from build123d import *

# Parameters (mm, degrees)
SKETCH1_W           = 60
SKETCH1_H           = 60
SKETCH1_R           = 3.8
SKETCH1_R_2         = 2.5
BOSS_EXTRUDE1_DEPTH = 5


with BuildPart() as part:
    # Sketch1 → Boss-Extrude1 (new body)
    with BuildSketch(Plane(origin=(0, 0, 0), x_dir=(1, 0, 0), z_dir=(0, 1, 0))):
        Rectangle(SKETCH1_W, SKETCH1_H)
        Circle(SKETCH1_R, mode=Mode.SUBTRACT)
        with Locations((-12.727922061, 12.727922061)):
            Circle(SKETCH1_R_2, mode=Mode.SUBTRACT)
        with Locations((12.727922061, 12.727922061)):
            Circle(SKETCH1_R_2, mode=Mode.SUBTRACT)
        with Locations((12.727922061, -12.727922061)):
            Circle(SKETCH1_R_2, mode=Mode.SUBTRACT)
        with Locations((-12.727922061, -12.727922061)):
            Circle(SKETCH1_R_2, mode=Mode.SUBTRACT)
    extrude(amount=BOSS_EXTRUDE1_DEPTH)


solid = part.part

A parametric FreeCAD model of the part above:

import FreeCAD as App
import Part
import Sketcher

V = App.Vector
Q = App.Units.Quantity


def add_polygon(sketch, points):
    """Adds a closed chain of lines whose ends are joined by coincident constraints."""
    first, n = sketch.GeometryCount, len(points)
    for a, b in zip(points, points[1:] + points[:1]):
        sketch.addGeometry(Part.LineSegment(App.Vector(*a, 0), App.Vector(*b, 0)), False)
    for i in range(n):
        sketch.addConstraint(Sketcher.Constraint("Coincident", first + i, 2, first + (i + 1) % n, 1))

doc = App.newDocument("Part")
body = doc.addObject("PartDesign::Body", "Body")

# Sketch on XZ plane
sketch1 = body.newObject("Sketcher::SketchObject", "Sketch")
sketch1.AttachmentSupport = (doc.getObject("XZ_Plane"), [""])
sketch1.MapMode = "FlatFace"
add_polygon(sketch1, [(-30, -30), (-30, 30), (30, 30), (30, -30)])  # lines 0-3
sketch1.addGeometry(Part.Circle(V(-12.7, 12.7, 0), V(0, 0, 1), 2.5), False)  # 4
sketch1.addGeometry(Part.Circle(V(12.7, 12.7, 0), V(0, 0, 1), 2.5), False)  # 5
sketch1.addGeometry(Part.Circle(V(-12.7, -12.7, 0), V(0, 0, 1), 2.5), False)  # 6
sketch1.addGeometry(Part.Circle(V(0, 0, 0), V(0, 0, 1), 3.8), False)  # 7
sketch1.addGeometry(Part.Circle(V(12.7, -12.7, 0), V(0, 0, 1), 2.5), False)  # 8
sketch1.addConstraint([
    Sketcher.Constraint("Vertical", 0),
    Sketcher.Constraint("Horizontal", 1),
    Sketcher.Constraint("Vertical", 2),
    Sketcher.Constraint("Horizontal", 3),
    Sketcher.Constraint("Coincident", 7, 3, -1, 1),
    Sketcher.Constraint("Equal", 4, 5),
    Sketcher.Constraint("Equal", 5, 6),
    Sketcher.Constraint("Equal", 6, 8),
    Sketcher.Constraint("Symmetric", 5, 3, 6, 3, -1, 1),
    Sketcher.Constraint("Symmetric", 4, 3, 8, 3, -1, 1),
    Sketcher.Constraint("Symmetric", 0, 2, 2, 2, -1, 1),
    Sketcher.Constraint("Symmetric", 4, 3, 5, 3, -2),
    Sketcher.Constraint("Equal", 3, 0),
    Sketcher.Constraint("Diameter", 4, Q("5 mm")),
    Sketcher.Constraint("Diameter", 7, Q("7.6 mm")),
    Sketcher.Constraint("DistanceX", 1, 1, 1, 2, Q("60 mm")),
    Sketcher.Constraint("DistanceX", 4, 3, -1, 1, Q("12.727922 mm")),
    Sketcher.Constraint("DistanceY", -1, 1, 4, 3, Q("12.727922 mm")),
])
pad1 = body.newObject("PartDesign::Pad", "Pad")
pad1.Profile = sketch1
pad1.Length = 5
pad1.Reversed = True

doc.recompute()
